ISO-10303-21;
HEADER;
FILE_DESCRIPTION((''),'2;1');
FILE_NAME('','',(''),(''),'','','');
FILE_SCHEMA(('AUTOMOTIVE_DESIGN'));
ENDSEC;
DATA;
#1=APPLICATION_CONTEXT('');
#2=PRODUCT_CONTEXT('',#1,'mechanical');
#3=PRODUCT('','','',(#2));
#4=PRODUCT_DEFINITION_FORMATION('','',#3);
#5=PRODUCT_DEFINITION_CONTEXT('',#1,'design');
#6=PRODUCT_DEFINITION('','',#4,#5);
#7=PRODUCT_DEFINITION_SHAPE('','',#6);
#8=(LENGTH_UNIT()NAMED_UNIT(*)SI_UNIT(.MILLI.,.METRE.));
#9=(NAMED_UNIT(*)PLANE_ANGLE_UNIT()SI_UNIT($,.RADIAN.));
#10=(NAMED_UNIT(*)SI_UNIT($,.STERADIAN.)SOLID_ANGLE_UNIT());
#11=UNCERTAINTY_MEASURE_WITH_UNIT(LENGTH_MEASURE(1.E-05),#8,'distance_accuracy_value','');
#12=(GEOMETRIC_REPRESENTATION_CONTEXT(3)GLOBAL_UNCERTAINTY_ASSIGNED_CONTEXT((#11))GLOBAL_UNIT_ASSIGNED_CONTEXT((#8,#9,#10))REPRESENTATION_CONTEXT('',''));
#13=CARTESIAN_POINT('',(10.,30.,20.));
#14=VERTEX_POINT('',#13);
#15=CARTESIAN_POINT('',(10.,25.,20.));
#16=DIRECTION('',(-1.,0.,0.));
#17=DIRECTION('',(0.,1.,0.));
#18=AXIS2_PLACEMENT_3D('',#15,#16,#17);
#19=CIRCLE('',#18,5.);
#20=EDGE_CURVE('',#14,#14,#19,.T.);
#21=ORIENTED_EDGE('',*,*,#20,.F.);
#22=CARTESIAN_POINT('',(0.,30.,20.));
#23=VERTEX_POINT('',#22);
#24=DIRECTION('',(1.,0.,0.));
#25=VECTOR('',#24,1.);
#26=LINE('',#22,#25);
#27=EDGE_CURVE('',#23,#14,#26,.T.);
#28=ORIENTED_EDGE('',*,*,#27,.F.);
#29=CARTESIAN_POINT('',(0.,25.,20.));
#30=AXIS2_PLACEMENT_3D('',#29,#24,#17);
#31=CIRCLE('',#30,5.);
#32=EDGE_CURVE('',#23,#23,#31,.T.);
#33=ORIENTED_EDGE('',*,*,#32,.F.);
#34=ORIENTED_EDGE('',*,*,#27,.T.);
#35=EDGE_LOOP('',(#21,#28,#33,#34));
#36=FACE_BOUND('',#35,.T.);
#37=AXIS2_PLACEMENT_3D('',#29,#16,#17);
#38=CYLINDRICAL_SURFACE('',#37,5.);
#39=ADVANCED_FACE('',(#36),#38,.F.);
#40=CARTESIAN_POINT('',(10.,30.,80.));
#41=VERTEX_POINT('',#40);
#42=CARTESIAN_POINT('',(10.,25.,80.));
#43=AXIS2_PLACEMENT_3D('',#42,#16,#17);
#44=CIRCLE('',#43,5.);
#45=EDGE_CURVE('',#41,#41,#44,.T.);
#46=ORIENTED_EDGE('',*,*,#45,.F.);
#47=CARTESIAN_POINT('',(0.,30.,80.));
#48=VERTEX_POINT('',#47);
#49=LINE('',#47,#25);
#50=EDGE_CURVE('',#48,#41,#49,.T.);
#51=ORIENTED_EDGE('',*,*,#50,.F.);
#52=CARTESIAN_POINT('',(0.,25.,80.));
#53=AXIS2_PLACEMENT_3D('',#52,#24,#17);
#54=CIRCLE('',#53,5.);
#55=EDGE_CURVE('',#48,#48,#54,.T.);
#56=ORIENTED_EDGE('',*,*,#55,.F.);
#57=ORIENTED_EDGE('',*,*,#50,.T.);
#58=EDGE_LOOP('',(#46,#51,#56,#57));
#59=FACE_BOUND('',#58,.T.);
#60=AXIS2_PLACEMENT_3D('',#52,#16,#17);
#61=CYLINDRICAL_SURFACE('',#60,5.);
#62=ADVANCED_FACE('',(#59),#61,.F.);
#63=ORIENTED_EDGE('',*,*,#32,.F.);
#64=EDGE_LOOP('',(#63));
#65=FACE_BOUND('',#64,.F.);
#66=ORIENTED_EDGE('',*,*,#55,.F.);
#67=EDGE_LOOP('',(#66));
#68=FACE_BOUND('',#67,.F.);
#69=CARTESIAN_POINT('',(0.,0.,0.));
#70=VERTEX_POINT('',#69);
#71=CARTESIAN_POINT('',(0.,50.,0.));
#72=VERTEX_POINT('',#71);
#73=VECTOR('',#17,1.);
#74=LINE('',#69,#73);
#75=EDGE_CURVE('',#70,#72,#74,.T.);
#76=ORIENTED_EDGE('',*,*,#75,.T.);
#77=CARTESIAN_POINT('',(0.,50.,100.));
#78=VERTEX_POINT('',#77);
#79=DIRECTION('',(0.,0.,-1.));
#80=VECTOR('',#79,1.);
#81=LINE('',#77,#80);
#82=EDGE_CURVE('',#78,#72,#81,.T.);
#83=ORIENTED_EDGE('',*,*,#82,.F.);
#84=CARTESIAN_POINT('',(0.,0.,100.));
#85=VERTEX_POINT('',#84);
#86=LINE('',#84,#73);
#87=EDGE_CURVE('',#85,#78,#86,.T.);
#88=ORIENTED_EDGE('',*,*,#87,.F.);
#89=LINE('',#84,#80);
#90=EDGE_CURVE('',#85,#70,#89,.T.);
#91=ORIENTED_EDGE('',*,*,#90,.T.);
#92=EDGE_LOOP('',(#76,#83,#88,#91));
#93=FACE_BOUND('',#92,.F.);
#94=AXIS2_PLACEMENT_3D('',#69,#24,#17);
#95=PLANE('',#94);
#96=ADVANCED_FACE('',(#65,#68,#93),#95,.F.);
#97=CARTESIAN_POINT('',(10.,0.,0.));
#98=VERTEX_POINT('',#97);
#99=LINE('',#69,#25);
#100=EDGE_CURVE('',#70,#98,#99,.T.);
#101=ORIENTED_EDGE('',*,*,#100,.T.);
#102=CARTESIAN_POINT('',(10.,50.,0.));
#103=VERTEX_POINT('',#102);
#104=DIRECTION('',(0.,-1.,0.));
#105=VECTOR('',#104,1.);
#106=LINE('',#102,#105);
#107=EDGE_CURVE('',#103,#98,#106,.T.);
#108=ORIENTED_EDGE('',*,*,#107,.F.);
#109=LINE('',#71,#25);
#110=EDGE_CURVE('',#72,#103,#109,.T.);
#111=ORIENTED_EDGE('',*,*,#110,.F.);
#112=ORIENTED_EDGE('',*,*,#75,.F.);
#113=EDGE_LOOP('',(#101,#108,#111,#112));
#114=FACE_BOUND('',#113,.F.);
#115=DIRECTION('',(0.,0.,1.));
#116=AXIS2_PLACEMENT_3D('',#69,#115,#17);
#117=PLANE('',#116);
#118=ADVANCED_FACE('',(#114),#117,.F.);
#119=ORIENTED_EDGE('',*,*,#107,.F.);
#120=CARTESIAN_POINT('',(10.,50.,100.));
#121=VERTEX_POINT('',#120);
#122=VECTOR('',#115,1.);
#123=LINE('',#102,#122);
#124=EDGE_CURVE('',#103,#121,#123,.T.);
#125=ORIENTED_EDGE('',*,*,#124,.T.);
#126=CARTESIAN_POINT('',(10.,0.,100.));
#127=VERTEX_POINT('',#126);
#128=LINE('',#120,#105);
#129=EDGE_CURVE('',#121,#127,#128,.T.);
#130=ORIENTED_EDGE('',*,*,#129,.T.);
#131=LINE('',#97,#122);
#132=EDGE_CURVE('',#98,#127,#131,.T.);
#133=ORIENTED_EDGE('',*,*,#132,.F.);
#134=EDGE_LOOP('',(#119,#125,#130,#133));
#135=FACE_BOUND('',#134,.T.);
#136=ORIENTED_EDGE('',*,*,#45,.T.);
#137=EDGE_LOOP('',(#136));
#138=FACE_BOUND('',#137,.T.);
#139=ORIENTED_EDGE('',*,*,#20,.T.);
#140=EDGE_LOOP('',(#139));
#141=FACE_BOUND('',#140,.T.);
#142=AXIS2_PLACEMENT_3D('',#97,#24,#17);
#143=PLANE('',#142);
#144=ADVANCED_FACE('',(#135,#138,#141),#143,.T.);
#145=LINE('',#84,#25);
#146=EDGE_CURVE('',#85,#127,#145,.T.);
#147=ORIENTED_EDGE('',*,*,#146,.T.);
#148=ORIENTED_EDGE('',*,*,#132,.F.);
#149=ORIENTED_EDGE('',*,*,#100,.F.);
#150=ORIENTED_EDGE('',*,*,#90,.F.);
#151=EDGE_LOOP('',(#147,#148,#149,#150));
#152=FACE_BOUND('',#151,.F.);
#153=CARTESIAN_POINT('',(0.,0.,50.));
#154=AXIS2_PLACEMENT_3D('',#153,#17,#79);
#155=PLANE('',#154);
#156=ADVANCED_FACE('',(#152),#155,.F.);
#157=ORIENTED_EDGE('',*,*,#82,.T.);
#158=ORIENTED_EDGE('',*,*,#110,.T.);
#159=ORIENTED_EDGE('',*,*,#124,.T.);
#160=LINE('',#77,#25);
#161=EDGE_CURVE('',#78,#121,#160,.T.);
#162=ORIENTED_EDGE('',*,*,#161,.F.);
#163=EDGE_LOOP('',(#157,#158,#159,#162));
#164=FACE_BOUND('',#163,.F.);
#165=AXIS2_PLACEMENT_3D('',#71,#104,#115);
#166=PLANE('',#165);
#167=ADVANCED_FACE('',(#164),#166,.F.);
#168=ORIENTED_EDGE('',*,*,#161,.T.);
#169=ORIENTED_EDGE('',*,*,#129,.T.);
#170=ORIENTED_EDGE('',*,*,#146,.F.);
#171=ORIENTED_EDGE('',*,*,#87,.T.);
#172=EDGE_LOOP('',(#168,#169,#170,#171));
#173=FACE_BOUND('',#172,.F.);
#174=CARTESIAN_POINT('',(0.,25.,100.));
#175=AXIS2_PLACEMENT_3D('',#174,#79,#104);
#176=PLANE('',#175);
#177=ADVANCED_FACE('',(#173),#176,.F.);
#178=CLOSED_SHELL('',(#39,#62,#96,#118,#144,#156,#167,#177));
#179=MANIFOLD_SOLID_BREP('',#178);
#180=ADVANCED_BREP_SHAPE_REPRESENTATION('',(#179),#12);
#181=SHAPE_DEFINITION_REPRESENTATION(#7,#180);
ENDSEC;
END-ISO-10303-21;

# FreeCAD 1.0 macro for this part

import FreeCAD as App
import Part
import Sketcher
from FreeCAD import Vector
Q = App.Units.Quantity

doc = App.newDocument("Part")
body = doc.addObject("PartDesign::Body", "Body")

# Sketch on YZ plane
sketch1 = doc.addObject("Sketcher::SketchObject", "Sketch")
body.addObject(sketch1)
sketch1.AttachmentSupport = (doc.YZ_Plane, [""])
sketch1.MapMode = "FlatFace"
sketch1.addGeometry([
    Part.LineSegment(Vector(0, 0, 0), Vector(50, 0, 0)),  # 0
    Part.LineSegment(Vector(50, 0, 0), Vector(50, 100, 0)),  # 1
    Part.LineSegment(Vector(50, 100, 0), Vector(0, 100, 0)),  # 2
    Part.LineSegment(Vector(0, 100, 0), Vector(0, 0, 0)),  # 3
    Part.Circle(Vector(25, 20, 0), Vector(0, 0, 1), 5),  # 4
    Part.Circle(Vector(25, 80, 0), Vector(0, 0, 1), 5),  # 5
], False)
sketch1.addConstraint([
    Sketcher.Constraint("Coincident", 0, 2, 1, 1),
    Sketcher.Constraint("Coincident", 1, 2, 2, 1),
    Sketcher.Constraint("Coincident", 2, 2, 3, 1),
    Sketcher.Constraint("Coincident", 3, 2, 0, 1),
    Sketcher.Constraint("Horizontal", 0),
    Sketcher.Constraint("Vertical", 1),
    Sketcher.Constraint("Horizontal", 2),
    Sketcher.Constraint("Vertical", 3),
    Sketcher.Constraint("Coincident", 3, 2, -1, 1),
    Sketcher.Constraint("Equal", 4, 5),
    Sketcher.Constraint("Vertical", 4, 3, 5, 3),
    Sketcher.Constraint("Diameter", 4, Q("0.3937 in")),
    Sketcher.Constraint("DistanceY", 1, 1, 1, 2, Q("3.937 in")),
    Sketcher.Constraint("DistanceX", 0, 1, 0, 2, Q("1.9685 in")),
    Sketcher.Constraint("DistanceY", -1, 1, 4, 3, Q("0.7874 in")),
    Sketcher.Constraint("DistanceY", 5, 3, 1, 2, Q("0.7874 in")),
    Sketcher.Constraint("DistanceX", -1, 1, 4, 3, Q("25 mm")),
])
pad1 = doc.addObject("PartDesign::Pad", "Pad")
body.addObject(pad1)
pad1.Profile = sketch1
pad1.Length = Q("0.3937008 in")

doc.recompute()
